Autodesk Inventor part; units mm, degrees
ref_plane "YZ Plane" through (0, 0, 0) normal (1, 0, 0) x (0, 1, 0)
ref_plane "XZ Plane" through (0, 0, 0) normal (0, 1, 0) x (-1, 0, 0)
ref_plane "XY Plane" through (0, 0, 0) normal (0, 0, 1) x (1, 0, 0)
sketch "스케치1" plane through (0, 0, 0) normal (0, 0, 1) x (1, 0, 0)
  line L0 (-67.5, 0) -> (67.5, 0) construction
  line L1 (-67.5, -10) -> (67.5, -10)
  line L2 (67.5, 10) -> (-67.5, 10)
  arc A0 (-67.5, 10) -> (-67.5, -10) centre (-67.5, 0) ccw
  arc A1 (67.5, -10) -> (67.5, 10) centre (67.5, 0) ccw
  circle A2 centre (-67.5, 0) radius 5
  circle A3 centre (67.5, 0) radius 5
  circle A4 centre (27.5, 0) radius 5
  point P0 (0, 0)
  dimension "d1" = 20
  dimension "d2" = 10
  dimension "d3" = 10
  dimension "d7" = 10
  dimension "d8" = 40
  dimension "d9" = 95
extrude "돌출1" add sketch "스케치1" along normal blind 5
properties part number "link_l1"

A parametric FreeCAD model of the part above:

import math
import FreeCAD as App
import Part
import Sketcher

V = App.Vector

doc = App.newDocument("Part")
body = doc.addObject("PartDesign::Body", "Body")

sketch1 = body.newObject("Sketcher::SketchObject", "Sketch")
sketch1.AttachmentSupport = (doc.getObject("XY_Plane"), [""])
sketch1.MapMode = "FlatFace"
sketch1.addGeometry([
    Part.ArcOfCircle(Part.Circle(V(-68, 0, 0), V(0, 0, 1), 10), math.radians(90), math.radians(270)),
    Part.LineSegment(V(-68, -10, 0), V(68, -10, 0)),
    Part.ArcOfCircle(Part.Circle(V(68, 0, 0), V(0, 0, 1), 10), math.radians(-90), math.radians(90)),
    Part.LineSegment(V(68, 10, 0), V(-68, 10, 0)),
    Part.Circle(V(-68, 0, 0), V(0, 0, 1), 5),
    Part.Circle(V(28, 0, 0), V(0, 0, 1), 5),
    Part.Circle(V(68, 0, 0), V(0, 0, 1), 5),
], False)
sketch1.addConstraint([
    Sketcher.Constraint("Tangent", 0, 2, 1, 1),
    Sketcher.Constraint("Tangent", 1, 2, 2, 1),
    Sketcher.Constraint("Tangent", 2, 2, 3, 1),
    Sketcher.Constraint("Tangent", 3, 2, 0, 1),
    Sketcher.Constraint("Horizontal", 1),
    Sketcher.Constraint("Horizontal", 3),
    Sketcher.Constraint("Coincident", 4, 3, 0, 3),
    Sketcher.Constraint("Coincident", 6, 3, 2, 3),
    Sketcher.Constraint("Equal", 4, 5),
    Sketcher.Constraint("Equal", 5, 6),
    Sketcher.Constraint("Symmetric", 0, 3, 2, 3, -1, 1),
    Sketcher.Constraint("PointOnObject", 5, 3, -1),
    Sketcher.Constraint("Diameter", 4, 10.0),
    Sketcher.Constraint("Radius", 0, 10.0),
    Sketcher.Constraint("DistanceX", 5, 3, 2, 3, 40.0),
    Sketcher.Constraint("DistanceX", 0, 3, 5, 3, 95.0),
])
pad1 = body.newObject("PartDesign::Pad", "Pad")
pad1.Profile = sketch1
pad1.Length = 5

doc.recompute()
